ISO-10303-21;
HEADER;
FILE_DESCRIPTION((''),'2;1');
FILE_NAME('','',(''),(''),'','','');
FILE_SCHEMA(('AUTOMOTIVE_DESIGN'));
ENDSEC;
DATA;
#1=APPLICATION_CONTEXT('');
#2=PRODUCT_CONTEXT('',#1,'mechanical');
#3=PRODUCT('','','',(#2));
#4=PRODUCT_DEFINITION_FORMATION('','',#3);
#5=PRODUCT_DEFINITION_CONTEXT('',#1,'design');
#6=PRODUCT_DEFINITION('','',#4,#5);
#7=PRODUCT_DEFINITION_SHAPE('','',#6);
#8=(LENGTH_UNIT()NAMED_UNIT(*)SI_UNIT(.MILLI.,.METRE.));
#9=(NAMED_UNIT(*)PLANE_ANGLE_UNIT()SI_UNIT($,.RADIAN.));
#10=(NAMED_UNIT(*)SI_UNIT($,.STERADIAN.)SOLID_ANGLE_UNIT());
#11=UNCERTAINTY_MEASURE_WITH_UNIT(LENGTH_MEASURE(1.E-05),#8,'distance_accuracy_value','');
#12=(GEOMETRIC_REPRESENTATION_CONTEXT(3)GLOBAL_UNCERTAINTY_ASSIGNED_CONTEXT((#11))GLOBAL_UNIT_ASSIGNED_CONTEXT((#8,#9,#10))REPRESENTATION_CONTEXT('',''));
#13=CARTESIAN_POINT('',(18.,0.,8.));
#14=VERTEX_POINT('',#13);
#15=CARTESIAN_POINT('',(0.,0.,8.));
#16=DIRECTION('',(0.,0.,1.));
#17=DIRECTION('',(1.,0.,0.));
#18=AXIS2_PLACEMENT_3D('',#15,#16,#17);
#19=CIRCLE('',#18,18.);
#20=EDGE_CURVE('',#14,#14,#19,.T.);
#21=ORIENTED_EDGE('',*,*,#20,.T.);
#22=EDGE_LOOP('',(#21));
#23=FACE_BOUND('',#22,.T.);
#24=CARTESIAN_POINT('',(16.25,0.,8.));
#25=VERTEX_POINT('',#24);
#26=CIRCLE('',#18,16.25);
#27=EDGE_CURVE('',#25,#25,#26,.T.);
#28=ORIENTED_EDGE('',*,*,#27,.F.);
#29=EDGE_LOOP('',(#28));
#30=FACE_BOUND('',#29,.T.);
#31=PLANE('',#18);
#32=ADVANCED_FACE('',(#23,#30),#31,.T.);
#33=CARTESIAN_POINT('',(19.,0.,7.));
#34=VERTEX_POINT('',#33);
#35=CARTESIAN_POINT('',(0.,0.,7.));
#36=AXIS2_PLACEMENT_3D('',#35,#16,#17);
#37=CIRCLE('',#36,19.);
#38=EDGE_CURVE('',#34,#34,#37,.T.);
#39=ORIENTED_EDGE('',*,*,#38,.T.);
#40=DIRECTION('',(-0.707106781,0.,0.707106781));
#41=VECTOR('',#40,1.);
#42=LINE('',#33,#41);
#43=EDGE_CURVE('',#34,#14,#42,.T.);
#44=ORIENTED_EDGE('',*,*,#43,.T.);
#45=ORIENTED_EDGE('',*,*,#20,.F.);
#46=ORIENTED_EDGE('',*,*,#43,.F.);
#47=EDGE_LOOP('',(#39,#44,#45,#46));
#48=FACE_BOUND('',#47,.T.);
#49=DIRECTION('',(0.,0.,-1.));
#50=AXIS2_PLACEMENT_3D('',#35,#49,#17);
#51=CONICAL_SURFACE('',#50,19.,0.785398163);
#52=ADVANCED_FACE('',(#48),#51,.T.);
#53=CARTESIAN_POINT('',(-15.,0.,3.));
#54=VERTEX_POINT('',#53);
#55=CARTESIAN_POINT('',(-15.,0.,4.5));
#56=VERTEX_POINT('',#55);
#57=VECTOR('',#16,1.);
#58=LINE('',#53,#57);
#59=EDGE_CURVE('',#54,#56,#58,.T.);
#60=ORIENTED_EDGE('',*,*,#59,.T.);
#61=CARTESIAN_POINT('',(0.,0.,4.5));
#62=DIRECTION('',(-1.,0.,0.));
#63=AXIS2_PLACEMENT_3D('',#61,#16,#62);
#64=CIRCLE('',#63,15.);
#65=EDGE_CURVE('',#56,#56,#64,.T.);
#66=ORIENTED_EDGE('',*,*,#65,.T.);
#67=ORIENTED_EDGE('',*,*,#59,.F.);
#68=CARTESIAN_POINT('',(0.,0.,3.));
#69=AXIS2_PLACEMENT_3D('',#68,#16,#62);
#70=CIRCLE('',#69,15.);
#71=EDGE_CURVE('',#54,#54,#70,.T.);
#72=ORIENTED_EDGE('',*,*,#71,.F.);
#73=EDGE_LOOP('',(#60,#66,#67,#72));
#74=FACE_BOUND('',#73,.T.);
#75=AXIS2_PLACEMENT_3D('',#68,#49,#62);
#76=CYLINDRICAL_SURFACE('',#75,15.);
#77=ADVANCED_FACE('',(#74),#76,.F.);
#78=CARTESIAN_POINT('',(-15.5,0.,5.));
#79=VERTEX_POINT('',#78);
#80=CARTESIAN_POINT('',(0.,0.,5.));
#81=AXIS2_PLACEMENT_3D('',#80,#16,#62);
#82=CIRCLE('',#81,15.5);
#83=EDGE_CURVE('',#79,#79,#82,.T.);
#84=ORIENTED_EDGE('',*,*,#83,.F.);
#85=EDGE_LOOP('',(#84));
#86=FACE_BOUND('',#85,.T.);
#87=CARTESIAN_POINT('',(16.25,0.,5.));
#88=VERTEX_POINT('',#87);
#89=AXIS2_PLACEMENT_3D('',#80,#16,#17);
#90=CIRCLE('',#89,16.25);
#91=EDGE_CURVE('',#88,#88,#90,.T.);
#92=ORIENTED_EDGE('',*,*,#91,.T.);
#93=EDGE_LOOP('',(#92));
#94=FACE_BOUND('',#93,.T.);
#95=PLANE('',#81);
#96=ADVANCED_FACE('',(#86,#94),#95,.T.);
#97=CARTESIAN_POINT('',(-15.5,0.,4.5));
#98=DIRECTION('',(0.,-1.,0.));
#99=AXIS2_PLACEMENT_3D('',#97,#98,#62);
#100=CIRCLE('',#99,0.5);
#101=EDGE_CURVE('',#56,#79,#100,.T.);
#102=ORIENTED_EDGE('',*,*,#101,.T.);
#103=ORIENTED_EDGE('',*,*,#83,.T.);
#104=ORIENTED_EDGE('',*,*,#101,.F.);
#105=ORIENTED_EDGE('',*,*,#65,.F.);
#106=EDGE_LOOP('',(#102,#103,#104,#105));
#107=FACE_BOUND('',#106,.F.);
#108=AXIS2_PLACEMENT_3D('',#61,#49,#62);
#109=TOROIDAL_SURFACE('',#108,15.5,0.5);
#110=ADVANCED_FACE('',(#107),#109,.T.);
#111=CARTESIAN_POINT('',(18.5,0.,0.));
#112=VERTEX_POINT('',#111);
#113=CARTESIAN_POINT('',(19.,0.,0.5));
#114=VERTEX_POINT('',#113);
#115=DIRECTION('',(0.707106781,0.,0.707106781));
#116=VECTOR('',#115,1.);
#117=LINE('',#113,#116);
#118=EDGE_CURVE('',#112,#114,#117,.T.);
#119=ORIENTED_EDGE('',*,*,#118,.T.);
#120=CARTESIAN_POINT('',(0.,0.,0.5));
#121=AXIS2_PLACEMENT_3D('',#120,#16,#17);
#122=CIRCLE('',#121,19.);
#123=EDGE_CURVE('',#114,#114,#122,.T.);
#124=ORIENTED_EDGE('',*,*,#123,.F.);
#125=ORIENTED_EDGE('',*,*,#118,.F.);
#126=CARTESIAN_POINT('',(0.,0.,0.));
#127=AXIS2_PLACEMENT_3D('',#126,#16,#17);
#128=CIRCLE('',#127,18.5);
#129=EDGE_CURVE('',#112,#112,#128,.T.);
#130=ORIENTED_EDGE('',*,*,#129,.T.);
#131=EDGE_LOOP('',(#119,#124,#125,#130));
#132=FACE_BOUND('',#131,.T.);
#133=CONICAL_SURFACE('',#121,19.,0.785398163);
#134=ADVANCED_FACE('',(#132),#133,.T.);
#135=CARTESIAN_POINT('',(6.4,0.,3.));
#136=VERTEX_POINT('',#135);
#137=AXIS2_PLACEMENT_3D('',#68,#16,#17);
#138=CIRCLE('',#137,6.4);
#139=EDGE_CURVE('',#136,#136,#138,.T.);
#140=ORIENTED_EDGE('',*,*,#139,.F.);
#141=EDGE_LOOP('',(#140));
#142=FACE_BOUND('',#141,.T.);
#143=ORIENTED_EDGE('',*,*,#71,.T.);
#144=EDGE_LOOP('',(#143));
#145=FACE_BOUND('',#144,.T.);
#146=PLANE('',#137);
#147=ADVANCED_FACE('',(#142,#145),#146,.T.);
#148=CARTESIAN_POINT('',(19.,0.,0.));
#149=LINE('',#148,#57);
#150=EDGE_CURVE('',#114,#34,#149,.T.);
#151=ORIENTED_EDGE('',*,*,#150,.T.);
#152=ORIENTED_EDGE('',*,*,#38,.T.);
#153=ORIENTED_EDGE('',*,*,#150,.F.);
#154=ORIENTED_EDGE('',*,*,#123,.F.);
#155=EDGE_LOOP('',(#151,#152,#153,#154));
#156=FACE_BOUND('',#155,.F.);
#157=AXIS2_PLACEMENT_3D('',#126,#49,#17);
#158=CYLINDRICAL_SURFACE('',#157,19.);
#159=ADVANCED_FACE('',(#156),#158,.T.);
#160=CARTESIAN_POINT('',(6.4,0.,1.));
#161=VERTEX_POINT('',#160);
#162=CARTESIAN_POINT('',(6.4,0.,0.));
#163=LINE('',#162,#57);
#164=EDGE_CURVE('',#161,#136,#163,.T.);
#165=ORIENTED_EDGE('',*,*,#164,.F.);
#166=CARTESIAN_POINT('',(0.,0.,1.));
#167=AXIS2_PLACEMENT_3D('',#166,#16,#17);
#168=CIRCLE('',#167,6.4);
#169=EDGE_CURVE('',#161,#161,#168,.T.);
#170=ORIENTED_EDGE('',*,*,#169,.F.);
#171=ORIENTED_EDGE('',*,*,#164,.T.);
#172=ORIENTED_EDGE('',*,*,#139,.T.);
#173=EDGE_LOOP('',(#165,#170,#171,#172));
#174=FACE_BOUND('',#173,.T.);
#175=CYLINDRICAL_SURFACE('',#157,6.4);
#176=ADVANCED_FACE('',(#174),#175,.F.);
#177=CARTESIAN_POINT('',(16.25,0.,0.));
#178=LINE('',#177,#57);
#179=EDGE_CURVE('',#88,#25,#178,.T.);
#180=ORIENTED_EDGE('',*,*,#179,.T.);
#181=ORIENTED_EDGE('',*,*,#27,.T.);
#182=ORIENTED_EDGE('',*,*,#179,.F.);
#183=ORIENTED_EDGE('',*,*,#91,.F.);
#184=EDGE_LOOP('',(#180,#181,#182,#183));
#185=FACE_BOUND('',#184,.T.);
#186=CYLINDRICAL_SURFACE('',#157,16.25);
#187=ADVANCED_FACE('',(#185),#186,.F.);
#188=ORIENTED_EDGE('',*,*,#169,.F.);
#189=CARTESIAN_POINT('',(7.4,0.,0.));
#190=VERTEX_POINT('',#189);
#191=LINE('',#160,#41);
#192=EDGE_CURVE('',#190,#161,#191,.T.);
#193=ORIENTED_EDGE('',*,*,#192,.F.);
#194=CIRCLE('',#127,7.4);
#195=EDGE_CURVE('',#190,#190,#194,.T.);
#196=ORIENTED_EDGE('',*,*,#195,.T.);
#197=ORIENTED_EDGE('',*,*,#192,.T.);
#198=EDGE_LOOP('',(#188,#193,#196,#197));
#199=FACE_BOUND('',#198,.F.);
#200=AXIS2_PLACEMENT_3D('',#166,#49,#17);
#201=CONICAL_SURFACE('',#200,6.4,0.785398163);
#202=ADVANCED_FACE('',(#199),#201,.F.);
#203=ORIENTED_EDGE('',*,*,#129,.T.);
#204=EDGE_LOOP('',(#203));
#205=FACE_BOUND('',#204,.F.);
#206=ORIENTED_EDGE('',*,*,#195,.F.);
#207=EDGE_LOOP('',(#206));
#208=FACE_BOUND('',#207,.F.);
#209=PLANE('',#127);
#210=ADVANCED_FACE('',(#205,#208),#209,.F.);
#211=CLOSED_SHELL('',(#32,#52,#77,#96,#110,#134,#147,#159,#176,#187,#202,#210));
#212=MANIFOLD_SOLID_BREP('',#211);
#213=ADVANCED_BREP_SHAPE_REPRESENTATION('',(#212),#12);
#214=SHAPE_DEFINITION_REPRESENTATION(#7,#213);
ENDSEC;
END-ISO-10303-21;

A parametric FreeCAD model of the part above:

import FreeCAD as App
import Part
import Sketcher


def edges_at(feature, points):
    """Names of the edges that pass closest to the given points."""
    edges = feature.Shape.Edges
    near = lambda p: min(range(len(edges)), key=lambda i: edges[i].distToShape(Part.Vertex(*p))[0])
    return sorted({f"Edge{near(p) + 1}" for p in points})

doc = App.newDocument("Part")
params = doc.addObject("Spreadsheet::Sheet", "Params")
for row, (alias, value) in enumerate([
    ("sketch1_diameter", "38 mm"),
    ("sketch1_diameter2", "32.5 mm"),
    ("pad1_length", "8 mm"),
    ("sketch2_diameter", "32.5 mm"),
    ("sketch2_diameter2", "12.8 mm"),
    ("pad2_length", "3 mm"),
    ("chamfer_size", "1 mm"),
    ("chamfer2_size", "1 mm"),
    ("sketch3_diameter", "30 mm"),
    ("sketch3_diameter2", "32.5 mm"),
    ("pad3_length", "2 mm"),
    ("fillet_radius", "0.5 mm"),
    ("chamfer3_size", "0.5 mm"),
], start=1):
    params.set(f"A{row}", alias)
    params.set(f"B{row}", "=" + value)
    params.setAlias(f"B{row}", alias)

body = doc.addObject("PartDesign::Body", "Body")

sketch1 = body.newObject("Sketcher::SketchObject", "Sketch")
sketch1.AttachmentSupport = (doc.getObject("XY_Plane"), [""])
sketch1.MapMode = "FlatFace"
sketch1.addGeometry([
    Part.Circle(App.Vector(0, 0, 0), App.Vector(0, 0, 1), 19),
    Part.Circle(App.Vector(0, 0, 0), App.Vector(0, 0, 1), 16),
], False)
sketch1.addConstraint([
    Sketcher.Constraint("Coincident", 0, 3, -1, 1),
    Sketcher.Constraint("Coincident", 1, 3, -1, 1),
    Sketcher.Constraint("Diameter", 0, 38.0),
    Sketcher.Constraint("Diameter", 1, 32.5),
])
sketch1.setExpression("Constraints[2]", "Params.sketch1_diameter")
sketch1.setExpression("Constraints[3]", "Params.sketch1_diameter2")
pad1 = body.newObject("PartDesign::Pad", "Pad")
pad1.Profile = sketch1
pad1.setExpression("Length", "Params.pad1_length")

sketch2 = body.newObject("Sketcher::SketchObject", "Sketch001")
sketch2.AttachmentSupport = (doc.getObject("XY_Plane"), [""])
sketch2.MapMode = "FlatFace"
sketch2.addGeometry([
    Part.Circle(App.Vector(0, 0, 0), App.Vector(0, 0, 1), 16),
    Part.Circle(App.Vector(0, 0, 0), App.Vector(0, 0, 1), 6),
], False)
sketch2.addConstraint([
    Sketcher.Constraint("Coincident", 0, 3, -1, 1),
    Sketcher.Constraint("Coincident", 1, 3, -1, 1),
    Sketcher.Constraint("Diameter", 0, 32.5),
    Sketcher.Constraint("Diameter", 1, 12.8),
])
sketch2.setExpression("Constraints[2]", "Params.sketch2_diameter")
sketch2.setExpression("Constraints[3]", "Params.sketch2_diameter2")
pad2 = body.newObject("PartDesign::Pad", "Pad001")
pad2.Profile = sketch2
pad2.setExpression("Length", "Params.pad2_length")
doc.recompute()

chamfer = body.newObject("PartDesign::Chamfer", "Chamfer")
chamfer.Base = (pad2, edges_at(pad2, [(-17.714, -6.871, 8)]))
chamfer.setExpression("Size", "Params.chamfer_size")
doc.recompute()

chamfer2 = body.newObject("PartDesign::Chamfer", "Chamfer001")
chamfer2.Base = (chamfer, edges_at(chamfer, [(-5.967, 2.314, 0)]))
chamfer2.setExpression("Size", "Params.chamfer2_size")

sketch3 = body.newObject("Sketcher::SketchObject", "Sketch002")
sketch3.AttachmentSupport = (doc.getObject("XY_Plane"), [""])
sketch3.MapMode = "FlatFace"
sketch3.AttachmentOffset = App.Placement(App.Vector(0, 0, 3), App.Rotation())
sketch3.addGeometry([
    Part.Circle(App.Vector(0, 0, 0), App.Vector(0, 0, 1), 16),
    Part.Circle(App.Vector(0, 0, 0), App.Vector(0, 0, 1), 15),
], False)
sketch3.addConstraint([
    Sketcher.Constraint("Coincident", 0, 3, -1, 1),
    Sketcher.Constraint("Coincident", 1, 3, -1, 1),
    Sketcher.Constraint("Diameter", 1, 30.0),
    Sketcher.Constraint("Diameter", 0, 32.5),
])
sketch3.setExpression("Constraints[2]", "Params.sketch3_diameter")
sketch3.setExpression("Constraints[3]", "Params.sketch3_diameter2")
pad3 = body.newObject("PartDesign::Pad", "Pad002")
pad3.Profile = sketch3
pad3.setExpression("Length", "Params.pad3_length")
doc.recompute()

fillet = body.newObject("PartDesign::Fillet", "Fillet")
fillet.Base = (pad3, edges_at(pad3, [(13.985, -5.424, 5)]))
fillet.setExpression("Radius", "Params.fillet_radius")
doc.recompute()

chamfer3 = body.newObject("PartDesign::Chamfer", "Chamfer002")
chamfer3.Base = (fillet, edges_at(fillet, [(-17.714, -6.871, 0)]))
chamfer3.setExpression("Size", "Params.chamfer3_size")

doc.recompute()
